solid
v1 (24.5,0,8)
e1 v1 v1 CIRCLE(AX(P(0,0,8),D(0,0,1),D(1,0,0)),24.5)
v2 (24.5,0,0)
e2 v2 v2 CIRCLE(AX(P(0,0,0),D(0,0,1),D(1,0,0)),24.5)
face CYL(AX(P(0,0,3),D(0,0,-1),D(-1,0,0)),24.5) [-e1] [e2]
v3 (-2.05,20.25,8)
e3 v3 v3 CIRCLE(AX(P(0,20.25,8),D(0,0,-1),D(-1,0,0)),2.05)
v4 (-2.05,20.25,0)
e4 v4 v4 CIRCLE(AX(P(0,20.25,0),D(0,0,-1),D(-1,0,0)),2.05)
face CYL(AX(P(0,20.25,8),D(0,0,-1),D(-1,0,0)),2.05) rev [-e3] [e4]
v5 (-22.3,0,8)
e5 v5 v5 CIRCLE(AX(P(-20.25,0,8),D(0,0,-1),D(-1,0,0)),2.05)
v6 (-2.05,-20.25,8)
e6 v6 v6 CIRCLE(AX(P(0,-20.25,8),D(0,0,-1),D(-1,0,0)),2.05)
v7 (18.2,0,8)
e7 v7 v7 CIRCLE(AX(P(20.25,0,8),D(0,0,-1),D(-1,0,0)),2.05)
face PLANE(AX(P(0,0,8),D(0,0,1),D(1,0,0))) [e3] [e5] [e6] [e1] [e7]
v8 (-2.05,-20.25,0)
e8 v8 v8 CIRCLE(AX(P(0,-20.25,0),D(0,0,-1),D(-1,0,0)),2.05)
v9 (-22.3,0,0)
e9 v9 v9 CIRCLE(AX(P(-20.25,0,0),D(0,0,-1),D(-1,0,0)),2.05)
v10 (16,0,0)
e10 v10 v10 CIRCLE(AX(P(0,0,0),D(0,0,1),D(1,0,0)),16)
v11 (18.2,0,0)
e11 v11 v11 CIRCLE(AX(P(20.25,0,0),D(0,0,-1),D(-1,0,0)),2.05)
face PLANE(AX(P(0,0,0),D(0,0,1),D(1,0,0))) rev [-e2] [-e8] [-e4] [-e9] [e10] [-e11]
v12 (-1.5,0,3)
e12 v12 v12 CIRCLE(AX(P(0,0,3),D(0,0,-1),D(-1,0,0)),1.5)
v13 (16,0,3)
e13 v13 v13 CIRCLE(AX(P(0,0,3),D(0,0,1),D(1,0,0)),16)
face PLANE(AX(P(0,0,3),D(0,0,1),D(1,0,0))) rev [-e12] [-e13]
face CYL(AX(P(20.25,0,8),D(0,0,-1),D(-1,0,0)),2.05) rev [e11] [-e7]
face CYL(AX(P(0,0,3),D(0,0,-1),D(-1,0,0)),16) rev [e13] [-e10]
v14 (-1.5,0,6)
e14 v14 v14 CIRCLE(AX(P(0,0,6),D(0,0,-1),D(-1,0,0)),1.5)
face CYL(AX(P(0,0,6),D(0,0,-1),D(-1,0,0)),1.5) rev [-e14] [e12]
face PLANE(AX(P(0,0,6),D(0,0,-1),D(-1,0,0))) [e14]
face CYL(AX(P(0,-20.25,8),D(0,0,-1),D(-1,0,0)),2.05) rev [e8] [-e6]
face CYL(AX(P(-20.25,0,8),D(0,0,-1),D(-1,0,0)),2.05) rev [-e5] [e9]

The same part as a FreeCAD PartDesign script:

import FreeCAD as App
import Part
import Sketcher

V = App.Vector

doc = App.newDocument("Part")
params = doc.addObject("Spreadsheet::Sheet", "Params")
for row, (alias, value) in enumerate([
    ("sketch1_diameter", "49 mm"),
    ("sketch1_diameter2", "32 mm"),
    ("pad1_length", "3 mm"),
    ("sketch2_diameter", "49 mm"),
    ("pad2_length", "5 mm"),
    ("sketch3_diameter", "4.1 mm"),
    ("sketch4_diameter", "3 mm"),
    ("pocket2_length", "3 mm"),
], start=1):
    params.set(f"A{row}", alias)
    params.set(f"B{row}", "=" + value)
    params.setAlias(f"B{row}", alias)

body = doc.addObject("PartDesign::Body", "Body")

# Sketch on XY plane
sketch1 = doc.addObject("Sketcher::SketchObject", "Sketch")
body.addObject(sketch1)
sketch1.AttachmentSupport = (doc.XY_Plane, [""])
sketch1.MapMode = "FlatFace"
sketch1.addGeometry(Part.Circle(V(0, 0, 0), V(0, 0, 1), 24.5), False)
sketch1.addGeometry(Part.Circle(V(0, 0, 0), V(0, 0, 1), 16), False)
sketch1.addConstraint(Sketcher.Constraint("Coincident", 0, 3, -1, 1))
sketch1.addConstraint(Sketcher.Constraint("Coincident", 1, 3, -1, 1))
sketch1.addConstraint(Sketcher.Constraint("Diameter", 0, 49.0))
sketch1.addConstraint(Sketcher.Constraint("Diameter", 1, 32.0))
sketch1.setExpression("Constraints[2]", "Params.sketch1_diameter")
sketch1.setExpression("Constraints[3]", "Params.sketch1_diameter2")
pad1 = doc.addObject("PartDesign::Pad", "Pad")
body.addObject(pad1)
pad1.Profile = sketch1
pad1.setExpression("Length", "Params.pad1_length")

# Sketch on XY plane
sketch2 = doc.addObject("Sketcher::SketchObject", "Sketch001")
body.addObject(sketch2)
sketch2.AttachmentSupport = (doc.XY_Plane, [""])
sketch2.MapMode = "FlatFace"
sketch2.AttachmentOffset = App.Placement(V(0, 0, 3), App.Rotation())
sketch2.addGeometry(Part.Circle(V(0, 0, 0), V(0, 0, 1), 24.5), False)
sketch2.addConstraint(Sketcher.Constraint("Coincident", 0, 3, -1, 1))
sketch2.addConstraint(Sketcher.Constraint("Diameter", 0, 49.0))
sketch2.setExpression("Constraints[1]", "Params.sketch2_diameter")
pad2 = doc.addObject("PartDesign::Pad", "Pad001")
body.addObject(pad2)
pad2.Profile = sketch2
pad2.setExpression("Length", "Params.pad2_length")

# Sketch on XY plane
sketch3 = doc.addObject("Sketcher::SketchObject", "Sketch002")
body.addObject(sketch3)
sketch3.AttachmentSupport = (doc.XY_Plane, [""])
sketch3.MapMode = "FlatFace"
sketch3.addGeometry(Part.Circle(V(0, 20.25, 0), V(0, 0, 1), 2.05), False)
sketch3.addGeometry(Part.Circle(V(-20.25, 0, 0), V(0, 0, 1), 2.05), False)
sketch3.addGeometry(Part.Circle(V(0, -20.25, 0), V(0, 0, 1), 2.05), False)
sketch3.addGeometry(Part.Circle(V(20.25, 0, 0), V(0, 0, 1), 2.05), False)
sketch3.addConstraint(Sketcher.Constraint("Equal", 0, 1))
sketch3.addConstraint(Sketcher.Constraint("Equal", 1, 2))
sketch3.addConstraint(Sketcher.Constraint("Equal", 2, 3))
sketch3.addConstraint(Sketcher.Constraint("Symmetric", 0, 3, 2, 3, -1, 1))
sketch3.addConstraint(Sketcher.Constraint("Symmetric", 1, 3, 3, 3, -1, 1))
sketch3.addConstraint(Sketcher.Constraint("PointOnObject", 0, 3, -2))
sketch3.addConstraint(Sketcher.Constraint("PointOnObject", 1, 3, -1))
sketch3.addConstraint(Sketcher.Constraint("Diameter", 0, 4.1))
sketch3.addConstraint(Sketcher.Constraint("DistanceY", 2, 3, 0, 3, 40.5))
sketch3.addConstraint(Sketcher.Constraint("DistanceX", 1, 3, 3, 3, 40.5))
sketch3.setExpression("Constraints[7]", "Params.sketch3_diameter")
pocket1 = doc.addObject("PartDesign::Pocket", "Pocket")
body.addObject(pocket1)
pocket1.Profile = sketch3
pocket1.Type = "ThroughAll"
pocket1.Reversed = True

# Sketch on XY plane
sketch4 = doc.addObject("Sketcher::SketchObject", "Sketch003")
body.addObject(sketch4)
sketch4.AttachmentSupport = (doc.XY_Plane, [""])
sketch4.MapMode = "FlatFace"
sketch4.AttachmentOffset = App.Placement(V(0, 0, 3), App.Rotation())
sketch4.addGeometry(Part.Circle(V(0, 0, 0), V(0, 0, 1), 1.5), False)
sketch4.addConstraint(Sketcher.Constraint("Coincident", 0, 3, -1, 1))
sketch4.addConstraint(Sketcher.Constraint("Diameter", 0, 3.0))
sketch4.setExpression("Constraints[1]", "Params.sketch4_diameter")
pocket2 = doc.addObject("PartDesign::Pocket", "Pocket001")
body.addObject(pocket2)
pocket2.Profile = sketch4
pocket2.setExpression("Length", "Params.pocket2_length")
pocket2.Reversed = True

doc.recompute()
